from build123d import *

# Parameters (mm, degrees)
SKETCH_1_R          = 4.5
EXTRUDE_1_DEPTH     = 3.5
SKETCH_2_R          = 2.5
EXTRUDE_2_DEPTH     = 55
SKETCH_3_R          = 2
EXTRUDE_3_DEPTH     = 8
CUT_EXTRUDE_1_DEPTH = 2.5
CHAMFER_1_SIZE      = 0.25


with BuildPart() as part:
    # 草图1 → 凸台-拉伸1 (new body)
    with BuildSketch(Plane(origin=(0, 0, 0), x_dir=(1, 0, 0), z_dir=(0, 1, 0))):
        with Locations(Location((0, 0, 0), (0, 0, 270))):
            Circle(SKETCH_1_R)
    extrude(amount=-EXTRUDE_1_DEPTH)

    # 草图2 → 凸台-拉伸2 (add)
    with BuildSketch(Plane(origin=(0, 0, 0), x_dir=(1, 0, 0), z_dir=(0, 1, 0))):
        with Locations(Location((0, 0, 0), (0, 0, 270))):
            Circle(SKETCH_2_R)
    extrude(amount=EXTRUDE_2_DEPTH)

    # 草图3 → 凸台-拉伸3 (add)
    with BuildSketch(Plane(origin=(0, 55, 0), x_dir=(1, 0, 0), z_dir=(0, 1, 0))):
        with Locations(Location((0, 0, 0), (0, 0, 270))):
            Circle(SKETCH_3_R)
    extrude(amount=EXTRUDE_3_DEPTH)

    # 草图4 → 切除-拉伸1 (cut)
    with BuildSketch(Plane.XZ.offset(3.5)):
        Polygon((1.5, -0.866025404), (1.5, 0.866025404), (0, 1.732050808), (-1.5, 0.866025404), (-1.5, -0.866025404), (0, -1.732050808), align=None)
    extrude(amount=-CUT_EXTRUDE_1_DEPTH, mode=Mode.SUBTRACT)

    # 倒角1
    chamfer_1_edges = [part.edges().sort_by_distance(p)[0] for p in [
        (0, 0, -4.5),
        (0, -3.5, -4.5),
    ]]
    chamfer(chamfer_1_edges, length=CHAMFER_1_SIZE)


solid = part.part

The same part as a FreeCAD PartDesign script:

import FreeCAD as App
import Part
import Sketcher

V = App.Vector
Q = App.Units.Quantity


def edges_at(feature, points):
    """Names of the edges that pass closest to the given points."""
    edges = feature.Shape.Edges
    near = lambda p: min(range(len(edges)), key=lambda i: edges[i].distToShape(Part.Vertex(*p))[0])
    return sorted({f"Edge{near(p) + 1}" for p in points})

doc = App.newDocument("Part")
body = doc.addObject("PartDesign::Body", "Body")

sketch1 = body.newObject("Sketcher::SketchObject", "Sketch")
sketch1.AttachmentSupport = (doc.getObject("XZ_Plane"), [""])
sketch1.MapMode = "FlatFace"
sketch1.addGeometry(Part.Circle(V(0, 0, 0), V(0, 0, 1), 4.5), False)
sketch1.addConstraint([
    Sketcher.Constraint("Coincident", 0, 3, -1, 1),
    Sketcher.Constraint("Diameter", 0, Q("9 mm")),
])
pad1 = body.newObject("PartDesign::Pad", "Pad")
pad1.Profile = sketch1
pad1.Length = 3.5

sketch2 = body.newObject("Sketcher::SketchObject", "Sketch001")
sketch2.AttachmentSupport = (doc.getObject("XZ_Plane"), [""])
sketch2.MapMode = "FlatFace"
sketch2.addGeometry(Part.Circle(V(0, 0, 0), V(0, 0, 1), 2.5), False)
sketch2.addConstraint([
    Sketcher.Constraint("Coincident", 0, 3, -1, 1),
    Sketcher.Constraint("Diameter", 0, Q("5 mm")),
])
pad2 = body.newObject("PartDesign::Pad", "Pad001")
pad2.Profile = sketch2
pad2.Length = 55
pad2.Reversed = True

sketch3 = body.newObject("Sketcher::SketchObject", "Sketch002")
sketch3.AttachmentSupport = (doc.getObject("XZ_Plane"), [""])
sketch3.MapMode = "FlatFace"
sketch3.AttachmentOffset = App.Placement(V(0, 0, -55), App.Rotation())
sketch3.addGeometry(Part.Circle(V(0, 0, 0), V(0, 0, 1), 2), False)
sketch3.addConstraint([
    Sketcher.Constraint("Coincident", 0, 3, -1, 1),
    Sketcher.Constraint("Diameter", 0, Q("4 mm")),
])
pad3 = body.newObject("PartDesign::Pad", "Pad002")
pad3.Profile = sketch3
pad3.Length = 8
pad3.Reversed = True

sketch4 = body.newObject("Sketcher::SketchObject", "Sketch003")
sketch4.AttachmentSupport = (doc.getObject("XZ_Plane"), [""])
sketch4.MapMode = "FlatFace"
sketch4.AttachmentOffset = App.Placement(V(0, 0, 3.5), App.Rotation())
sketch4.addGeometry([
    Part.LineSegment(V(1.5, -0.9, 0), V(1.5, 0.9, 0)),
    Part.LineSegment(V(1.5, 0.9, 0), V(0, 1.7, 0)),
    Part.LineSegment(V(0, 1.7, 0), V(-1.5, 0.9, 0)),
    Part.LineSegment(V(-1.5, 0.9, 0), V(-1.5, -0.9, 0)),
    Part.LineSegment(V(-1.5, -0.9, 0), V(0, -1.7, 0)),
    Part.LineSegment(V(0, -1.7, 0), V(1.5, -0.9, 0)),
], False)
sketch4.addConstraint([
    Sketcher.Constraint("Coincident", 0, 2, 1, 1),
    Sketcher.Constraint("Coincident", 1, 2, 2, 1),
    Sketcher.Constraint("Coincident", 2, 2, 3, 1),
    Sketcher.Constraint("Coincident", 3, 2, 4, 1),
    Sketcher.Constraint("Coincident", 4, 2, 5, 1),
    Sketcher.Constraint("Coincident", 5, 2, 0, 1),
    Sketcher.Constraint("Vertical", 0),
    Sketcher.Constraint("Vertical", 3),
    Sketcher.Constraint("Symmetric", 0, 2, 3, 2, -1, 1),
    Sketcher.Constraint("Symmetric", 1, 2, 4, 2, -1, 1),
    Sketcher.Constraint("PointOnObject", 1, 2, -2),
    Sketcher.Constraint("Parallel", 2, 5),
    Sketcher.Constraint("Horizontal", 0, 2, 2, 2),
    Sketcher.Constraint("Angle", 1, Q("150 deg")),
    Sketcher.Constraint("DistanceX", 2, 2, 0, 2, Q("3 mm")),
    Sketcher.Constraint("DistanceY", 0, 1, 0, 2, Q("1.732051 mm")),
])
pocket1 = body.newObject("PartDesign::Pocket", "Pocket")
pocket1.Profile = sketch4
pocket1.Length = 2.5
doc.recompute()

chamfer = body.newObject("PartDesign::Chamfer", "Chamfer")
chamfer.Base = (pocket1, edges_at(pocket1, [(0, 0, -4.5), (0, -3.5, -4.5)]))
chamfer.Size = 0.25

doc.recompute()
